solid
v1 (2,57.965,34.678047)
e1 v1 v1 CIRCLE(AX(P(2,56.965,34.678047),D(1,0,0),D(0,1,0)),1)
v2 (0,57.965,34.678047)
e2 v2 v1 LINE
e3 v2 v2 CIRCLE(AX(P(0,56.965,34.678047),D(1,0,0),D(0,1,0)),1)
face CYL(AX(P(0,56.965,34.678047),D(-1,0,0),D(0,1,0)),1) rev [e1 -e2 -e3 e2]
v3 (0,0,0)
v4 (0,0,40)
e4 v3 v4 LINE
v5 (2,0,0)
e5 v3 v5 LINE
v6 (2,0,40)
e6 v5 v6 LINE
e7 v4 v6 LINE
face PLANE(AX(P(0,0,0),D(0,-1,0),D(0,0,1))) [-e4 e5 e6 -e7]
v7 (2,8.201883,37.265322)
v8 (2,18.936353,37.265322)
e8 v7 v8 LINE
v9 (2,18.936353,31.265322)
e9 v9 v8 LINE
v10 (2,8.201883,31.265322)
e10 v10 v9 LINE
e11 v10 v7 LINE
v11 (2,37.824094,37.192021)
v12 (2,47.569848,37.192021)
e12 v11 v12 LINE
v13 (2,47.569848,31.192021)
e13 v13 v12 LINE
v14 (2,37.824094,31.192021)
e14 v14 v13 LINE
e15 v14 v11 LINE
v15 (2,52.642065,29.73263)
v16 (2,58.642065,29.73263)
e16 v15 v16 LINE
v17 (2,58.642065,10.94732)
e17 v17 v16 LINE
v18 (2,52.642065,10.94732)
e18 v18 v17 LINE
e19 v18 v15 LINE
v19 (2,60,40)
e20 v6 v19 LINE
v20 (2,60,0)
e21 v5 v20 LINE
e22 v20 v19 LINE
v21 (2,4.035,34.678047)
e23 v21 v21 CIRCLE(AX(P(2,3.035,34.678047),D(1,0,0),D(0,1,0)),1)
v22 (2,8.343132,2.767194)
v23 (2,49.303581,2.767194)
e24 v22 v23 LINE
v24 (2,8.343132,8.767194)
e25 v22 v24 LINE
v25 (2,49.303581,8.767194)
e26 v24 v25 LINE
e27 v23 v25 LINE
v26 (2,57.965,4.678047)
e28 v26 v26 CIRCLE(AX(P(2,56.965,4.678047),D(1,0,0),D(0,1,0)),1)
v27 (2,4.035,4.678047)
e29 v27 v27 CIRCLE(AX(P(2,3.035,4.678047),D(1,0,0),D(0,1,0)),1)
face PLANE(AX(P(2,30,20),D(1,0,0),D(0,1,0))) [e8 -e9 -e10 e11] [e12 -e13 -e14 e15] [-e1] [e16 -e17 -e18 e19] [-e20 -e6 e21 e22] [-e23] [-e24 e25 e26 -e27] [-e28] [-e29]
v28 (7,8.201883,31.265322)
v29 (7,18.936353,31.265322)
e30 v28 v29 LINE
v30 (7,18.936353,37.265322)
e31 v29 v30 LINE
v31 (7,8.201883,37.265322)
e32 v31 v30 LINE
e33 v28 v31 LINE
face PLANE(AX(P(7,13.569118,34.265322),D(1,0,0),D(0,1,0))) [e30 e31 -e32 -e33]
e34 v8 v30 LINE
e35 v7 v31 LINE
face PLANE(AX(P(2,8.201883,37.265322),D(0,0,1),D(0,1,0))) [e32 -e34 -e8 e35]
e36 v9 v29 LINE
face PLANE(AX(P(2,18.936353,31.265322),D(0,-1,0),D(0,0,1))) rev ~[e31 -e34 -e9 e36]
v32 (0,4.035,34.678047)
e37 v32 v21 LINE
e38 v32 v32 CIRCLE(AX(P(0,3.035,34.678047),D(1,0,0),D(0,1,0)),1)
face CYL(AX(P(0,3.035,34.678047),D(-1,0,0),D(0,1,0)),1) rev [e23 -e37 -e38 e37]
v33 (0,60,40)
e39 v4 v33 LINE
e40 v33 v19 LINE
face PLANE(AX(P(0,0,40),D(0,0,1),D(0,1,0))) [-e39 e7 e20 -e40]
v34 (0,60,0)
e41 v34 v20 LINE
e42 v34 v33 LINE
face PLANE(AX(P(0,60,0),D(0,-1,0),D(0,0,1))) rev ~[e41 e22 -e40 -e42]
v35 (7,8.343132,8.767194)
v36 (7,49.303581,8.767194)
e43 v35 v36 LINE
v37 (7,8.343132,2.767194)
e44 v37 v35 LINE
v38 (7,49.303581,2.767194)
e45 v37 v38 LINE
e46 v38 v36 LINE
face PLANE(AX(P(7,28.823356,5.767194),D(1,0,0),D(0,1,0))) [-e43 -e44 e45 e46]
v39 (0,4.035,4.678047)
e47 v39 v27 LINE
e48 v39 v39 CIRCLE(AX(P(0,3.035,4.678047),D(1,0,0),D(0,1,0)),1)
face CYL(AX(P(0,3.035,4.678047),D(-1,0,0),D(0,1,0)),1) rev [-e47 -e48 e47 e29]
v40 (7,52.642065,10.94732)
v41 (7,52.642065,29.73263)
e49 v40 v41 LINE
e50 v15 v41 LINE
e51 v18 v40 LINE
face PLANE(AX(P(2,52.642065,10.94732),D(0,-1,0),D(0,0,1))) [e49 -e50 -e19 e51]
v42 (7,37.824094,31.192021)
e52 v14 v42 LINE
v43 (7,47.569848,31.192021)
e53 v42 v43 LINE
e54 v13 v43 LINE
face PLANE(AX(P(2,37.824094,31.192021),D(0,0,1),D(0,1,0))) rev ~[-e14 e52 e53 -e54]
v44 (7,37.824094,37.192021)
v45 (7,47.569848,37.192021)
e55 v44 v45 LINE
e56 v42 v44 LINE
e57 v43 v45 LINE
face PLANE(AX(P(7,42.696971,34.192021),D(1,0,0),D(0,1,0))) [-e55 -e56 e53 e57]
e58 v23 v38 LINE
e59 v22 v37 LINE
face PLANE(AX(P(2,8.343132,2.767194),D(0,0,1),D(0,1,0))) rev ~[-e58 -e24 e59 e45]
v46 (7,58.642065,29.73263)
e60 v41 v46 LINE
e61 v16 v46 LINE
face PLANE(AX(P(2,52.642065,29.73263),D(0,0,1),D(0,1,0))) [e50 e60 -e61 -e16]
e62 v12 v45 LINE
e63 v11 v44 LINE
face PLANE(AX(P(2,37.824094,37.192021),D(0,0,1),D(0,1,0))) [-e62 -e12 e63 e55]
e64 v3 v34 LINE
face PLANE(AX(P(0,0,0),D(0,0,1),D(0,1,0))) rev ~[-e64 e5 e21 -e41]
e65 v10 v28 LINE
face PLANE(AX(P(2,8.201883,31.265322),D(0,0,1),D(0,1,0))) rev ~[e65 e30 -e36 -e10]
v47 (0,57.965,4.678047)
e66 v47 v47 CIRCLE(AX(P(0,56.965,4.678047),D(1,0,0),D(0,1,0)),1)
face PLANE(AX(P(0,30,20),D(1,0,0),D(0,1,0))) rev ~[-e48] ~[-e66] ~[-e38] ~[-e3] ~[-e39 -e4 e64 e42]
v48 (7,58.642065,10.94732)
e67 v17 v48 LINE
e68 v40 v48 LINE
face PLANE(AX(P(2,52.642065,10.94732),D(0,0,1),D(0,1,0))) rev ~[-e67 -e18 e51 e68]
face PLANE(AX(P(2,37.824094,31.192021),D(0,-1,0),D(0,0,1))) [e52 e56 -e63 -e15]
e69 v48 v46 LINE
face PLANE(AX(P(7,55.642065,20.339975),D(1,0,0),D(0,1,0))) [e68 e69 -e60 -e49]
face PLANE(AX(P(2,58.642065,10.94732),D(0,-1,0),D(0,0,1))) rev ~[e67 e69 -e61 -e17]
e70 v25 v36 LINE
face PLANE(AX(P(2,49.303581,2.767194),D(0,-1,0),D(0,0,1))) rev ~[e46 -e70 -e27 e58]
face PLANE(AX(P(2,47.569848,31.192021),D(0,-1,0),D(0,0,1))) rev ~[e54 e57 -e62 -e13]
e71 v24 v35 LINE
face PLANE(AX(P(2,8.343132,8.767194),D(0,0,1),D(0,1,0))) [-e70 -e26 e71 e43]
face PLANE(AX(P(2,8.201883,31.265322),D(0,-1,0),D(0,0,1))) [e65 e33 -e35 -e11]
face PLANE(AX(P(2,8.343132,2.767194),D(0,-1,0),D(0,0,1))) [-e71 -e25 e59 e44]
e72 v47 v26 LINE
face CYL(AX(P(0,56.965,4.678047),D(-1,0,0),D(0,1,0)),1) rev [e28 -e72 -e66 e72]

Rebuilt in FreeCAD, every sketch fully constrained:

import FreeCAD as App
import Part
import Sketcher
from FreeCAD import Vector

doc = App.newDocument("Part")
body = doc.addObject("PartDesign::Body", "Body")

# Sketch on YZ plane
sketch1 = body.newObject("Sketcher::SketchObject", "Sketch")
sketch1.AttachmentSupport = (doc.getObject("YZ_Plane"), [""])
sketch1.MapMode = "FlatFace"
sketch1.addGeometry([
    Part.LineSegment(Vector(0, 40, 0), Vector(0, 0, 0)),  # 0
    Part.LineSegment(Vector(0, 0, 0), Vector(60, 0, 0)),  # 1
    Part.LineSegment(Vector(60, 0, 0), Vector(60, 40, 0)),  # 2
    Part.LineSegment(Vector(60, 40, 0), Vector(0, 40, 0)),  # 3
    Part.Circle(Vector(3.035, 4.678047, 0), Vector(0, 0, 1), 1),  # 4
    Part.Circle(Vector(56.965, 4.678047, 0), Vector(0, 0, 1), 1),  # 5
    Part.Circle(Vector(3.035, 34.678047, 0), Vector(0, 0, 1), 1),  # 6
    Part.Circle(Vector(56.965, 34.678047, 0), Vector(0, 0, 1), 1),  # 7
], False)
sketch1.addConstraint([
    Sketcher.Constraint("Coincident", 0, 2, 1, 1),
    Sketcher.Constraint("Coincident", 1, 2, 2, 1),
    Sketcher.Constraint("Coincident", 2, 2, 3, 1),
    Sketcher.Constraint("Coincident", 3, 2, 0, 1),
    Sketcher.Constraint("Vertical", 0),
    Sketcher.Constraint("Horizontal", 1),
    Sketcher.Constraint("Vertical", 2),
    Sketcher.Constraint("Horizontal", 3),
    Sketcher.Constraint("Coincident", 0, 2, -1, 1),
    Sketcher.Constraint("Equal", 4, 5),
    Sketcher.Constraint("Equal", 5, 6),
    Sketcher.Constraint("Equal", 6, 7),
    Sketcher.Constraint("Horizontal", 4, 3, 5, 3),
    Sketcher.Constraint("Horizontal", 6, 3, 7, 3),
    Sketcher.Constraint("Vertical", 4, 3, 6, 3),
    Sketcher.Constraint("Vertical", 5, 3, 7, 3),
    Sketcher.Constraint("Diameter", 4, 2.0),
    Sketcher.Constraint("DistanceX", 1, 1, 1, 2, 60.0),
    Sketcher.Constraint("DistanceY", 0, 2, 0, 1, 40.0),
    Sketcher.Constraint("DistanceY", 4, 3, 6, 3, 30.0),
    Sketcher.Constraint("DistanceX", 4, 3, 5, 3, 53.93),
    Sketcher.Constraint("DistanceX", -1, 1, 4, 3, 3.035),
    Sketcher.Constraint("DistanceY", -1, 1, 4, 3, 4.678047),
])
pad1 = body.newObject("PartDesign::Pad", "Pad")
pad1.Profile = sketch1
pad1.Length = 2

# Sketch on YZ plane
sketch2 = body.newObject("Sketcher::SketchObject", "Sketch001")
sketch2.AttachmentSupport = (doc.getObject("YZ_Plane"), [""])
sketch2.MapMode = "FlatFace"
sketch2.AttachmentOffset = App.Placement(Vector(0, 0, 2), App.Rotation())
sketch2.addGeometry([
    Part.LineSegment(Vector(8.201883, 37.265322, 0), Vector(8.201883, 31.265322, 0)),  # 0
    Part.LineSegment(Vector(8.201883, 31.265322, 0), Vector(18.936353, 31.265322, 0)),  # 1
    Part.LineSegment(Vector(18.936353, 31.265322, 0), Vector(18.936353, 37.265322, 0)),  # 2
    Part.LineSegment(Vector(18.936353, 37.265322, 0), Vector(8.201883, 37.265322, 0)),  # 3
    Part.LineSegment(Vector(52.642065, 29.73263, 0), Vector(52.642065, 10.94732, 0)),  # 4
    Part.LineSegment(Vector(52.642065, 10.94732, 0), Vector(58.642065, 10.94732, 0)),  # 5
    Part.LineSegment(Vector(58.642065, 10.94732, 0), Vector(58.642065, 29.73263, 0)),  # 6
    Part.LineSegment(Vector(58.642065, 29.73263, 0), Vector(52.642065, 29.73263, 0)),  # 7
    Part.LineSegment(Vector(8.343132, 8.767194, 0), Vector(8.343132, 2.767194, 0)),  # 8
    Part.LineSegment(Vector(8.343132, 2.767194, 0), Vector(49.303581, 2.767194, 0)),  # 9
    Part.LineSegment(Vector(49.303581, 2.767194, 0), Vector(49.303581, 8.767194, 0)),  # 10
    Part.LineSegment(Vector(49.303581, 8.767194, 0), Vector(8.343132, 8.767194, 0)),  # 11
    Part.LineSegment(Vector(37.824094, 37.192021, 0), Vector(37.824094, 31.192021, 0)),  # 12
    Part.LineSegment(Vector(37.824094, 31.192021, 0), Vector(47.569848, 31.192021, 0)),  # 13
    Part.LineSegment(Vector(47.569848, 31.192021, 0), Vector(47.569848, 37.192021, 0)),  # 14
    Part.LineSegment(Vector(47.569848, 37.192021, 0), Vector(37.824094, 37.192021, 0)),  # 15
], False)
sketch2.addConstraint([
    Sketcher.Constraint("Coincident", 0, 2, 1, 1),
    Sketcher.Constraint("Coincident", 1, 2, 2, 1),
    Sketcher.Constraint("Coincident", 2, 2, 3, 1),
    Sketcher.Constraint("Coincident", 3, 2, 0, 1),
    Sketcher.Constraint("Coincident", 4, 2, 5, 1),
    Sketcher.Constraint("Coincident", 5, 2, 6, 1),
    Sketcher.Constraint("Coincident", 6, 2, 7, 1),
    Sketcher.Constraint("Coincident", 7, 2, 4, 1),
    Sketcher.Constraint("Coincident", 8, 2, 9, 1),
    Sketcher.Constraint("Coincident", 9, 2, 10, 1),
    Sketcher.Constraint("Coincident", 10, 2, 11, 1),
    Sketcher.Constraint("Coincident", 11, 2, 8, 1),
    Sketcher.Constraint("Coincident", 12, 2, 13, 1),
    Sketcher.Constraint("Coincident", 13, 2, 14, 1),
    Sketcher.Constraint("Coincident", 14, 2, 15, 1),
    Sketcher.Constraint("Coincident", 15, 2, 12, 1),
    Sketcher.Constraint("Vertical", 0),
    Sketcher.Constraint("Horizontal", 1),
    Sketcher.Constraint("Vertical", 2),
    Sketcher.Constraint("Horizontal", 3),
    Sketcher.Constraint("Vertical", 4),
    Sketcher.Constraint("Horizontal", 5),
    Sketcher.Constraint("Vertical", 6),
    Sketcher.Constraint("Horizontal", 7),
    Sketcher.Constraint("Vertical", 8),
    Sketcher.Constraint("Horizontal", 9),
    Sketcher.Constraint("Vertical", 10),
    Sketcher.Constraint("Horizontal", 11),
    Sketcher.Constraint("Vertical", 12),
    Sketcher.Constraint("Horizontal", 13),
    Sketcher.Constraint("Vertical", 14),
    Sketcher.Constraint("Horizontal", 15),
    Sketcher.Constraint("Equal", 7, 0),
    Sketcher.Constraint("Equal", 2, 8),
    Sketcher.Constraint("Equal", 10, 12),
    Sketcher.Constraint("DistanceX", 5, 1, 5, 2, 6.0),
    Sketcher.Constraint("DistanceX", 1, 1, 1, 2, 10.734469),
    Sketcher.Constraint("DistanceX", 9, 1, 9, 2, 40.960449),
    Sketcher.Constraint("DistanceY", 4, 2, 4, 1, 18.785311),
    Sketcher.Constraint("DistanceY", 12, 2, 1, 2, 0.073301),
    Sketcher.Constraint("DistanceY", 4, 2, 12, 2, 20.244701),
    Sketcher.Constraint("DistanceX", 13, 1, 13, 2, 9.745754),
    Sketcher.Constraint("DistanceY", -1, 1, 2, 2, 37.265322),
    Sketcher.Constraint("DistanceX", -1, 1, 8, 2, 8.343132),
    Sketcher.Constraint("DistanceX", 0, 2, 4, 2, 44.440182),
    Sketcher.Constraint("DistanceX", 0, 2, 8, 2, 0.141248),
    Sketcher.Constraint("DistanceY", 8, 2, 0, 2, 28.498128),
    Sketcher.Constraint("DistanceX", 12, 2, 7, 2, 14.817971),
])
pad2 = body.newObject("PartDesign::Pad", "Pad001")
pad2.Profile = sketch2
pad2.Length = 5

doc.recompute()
